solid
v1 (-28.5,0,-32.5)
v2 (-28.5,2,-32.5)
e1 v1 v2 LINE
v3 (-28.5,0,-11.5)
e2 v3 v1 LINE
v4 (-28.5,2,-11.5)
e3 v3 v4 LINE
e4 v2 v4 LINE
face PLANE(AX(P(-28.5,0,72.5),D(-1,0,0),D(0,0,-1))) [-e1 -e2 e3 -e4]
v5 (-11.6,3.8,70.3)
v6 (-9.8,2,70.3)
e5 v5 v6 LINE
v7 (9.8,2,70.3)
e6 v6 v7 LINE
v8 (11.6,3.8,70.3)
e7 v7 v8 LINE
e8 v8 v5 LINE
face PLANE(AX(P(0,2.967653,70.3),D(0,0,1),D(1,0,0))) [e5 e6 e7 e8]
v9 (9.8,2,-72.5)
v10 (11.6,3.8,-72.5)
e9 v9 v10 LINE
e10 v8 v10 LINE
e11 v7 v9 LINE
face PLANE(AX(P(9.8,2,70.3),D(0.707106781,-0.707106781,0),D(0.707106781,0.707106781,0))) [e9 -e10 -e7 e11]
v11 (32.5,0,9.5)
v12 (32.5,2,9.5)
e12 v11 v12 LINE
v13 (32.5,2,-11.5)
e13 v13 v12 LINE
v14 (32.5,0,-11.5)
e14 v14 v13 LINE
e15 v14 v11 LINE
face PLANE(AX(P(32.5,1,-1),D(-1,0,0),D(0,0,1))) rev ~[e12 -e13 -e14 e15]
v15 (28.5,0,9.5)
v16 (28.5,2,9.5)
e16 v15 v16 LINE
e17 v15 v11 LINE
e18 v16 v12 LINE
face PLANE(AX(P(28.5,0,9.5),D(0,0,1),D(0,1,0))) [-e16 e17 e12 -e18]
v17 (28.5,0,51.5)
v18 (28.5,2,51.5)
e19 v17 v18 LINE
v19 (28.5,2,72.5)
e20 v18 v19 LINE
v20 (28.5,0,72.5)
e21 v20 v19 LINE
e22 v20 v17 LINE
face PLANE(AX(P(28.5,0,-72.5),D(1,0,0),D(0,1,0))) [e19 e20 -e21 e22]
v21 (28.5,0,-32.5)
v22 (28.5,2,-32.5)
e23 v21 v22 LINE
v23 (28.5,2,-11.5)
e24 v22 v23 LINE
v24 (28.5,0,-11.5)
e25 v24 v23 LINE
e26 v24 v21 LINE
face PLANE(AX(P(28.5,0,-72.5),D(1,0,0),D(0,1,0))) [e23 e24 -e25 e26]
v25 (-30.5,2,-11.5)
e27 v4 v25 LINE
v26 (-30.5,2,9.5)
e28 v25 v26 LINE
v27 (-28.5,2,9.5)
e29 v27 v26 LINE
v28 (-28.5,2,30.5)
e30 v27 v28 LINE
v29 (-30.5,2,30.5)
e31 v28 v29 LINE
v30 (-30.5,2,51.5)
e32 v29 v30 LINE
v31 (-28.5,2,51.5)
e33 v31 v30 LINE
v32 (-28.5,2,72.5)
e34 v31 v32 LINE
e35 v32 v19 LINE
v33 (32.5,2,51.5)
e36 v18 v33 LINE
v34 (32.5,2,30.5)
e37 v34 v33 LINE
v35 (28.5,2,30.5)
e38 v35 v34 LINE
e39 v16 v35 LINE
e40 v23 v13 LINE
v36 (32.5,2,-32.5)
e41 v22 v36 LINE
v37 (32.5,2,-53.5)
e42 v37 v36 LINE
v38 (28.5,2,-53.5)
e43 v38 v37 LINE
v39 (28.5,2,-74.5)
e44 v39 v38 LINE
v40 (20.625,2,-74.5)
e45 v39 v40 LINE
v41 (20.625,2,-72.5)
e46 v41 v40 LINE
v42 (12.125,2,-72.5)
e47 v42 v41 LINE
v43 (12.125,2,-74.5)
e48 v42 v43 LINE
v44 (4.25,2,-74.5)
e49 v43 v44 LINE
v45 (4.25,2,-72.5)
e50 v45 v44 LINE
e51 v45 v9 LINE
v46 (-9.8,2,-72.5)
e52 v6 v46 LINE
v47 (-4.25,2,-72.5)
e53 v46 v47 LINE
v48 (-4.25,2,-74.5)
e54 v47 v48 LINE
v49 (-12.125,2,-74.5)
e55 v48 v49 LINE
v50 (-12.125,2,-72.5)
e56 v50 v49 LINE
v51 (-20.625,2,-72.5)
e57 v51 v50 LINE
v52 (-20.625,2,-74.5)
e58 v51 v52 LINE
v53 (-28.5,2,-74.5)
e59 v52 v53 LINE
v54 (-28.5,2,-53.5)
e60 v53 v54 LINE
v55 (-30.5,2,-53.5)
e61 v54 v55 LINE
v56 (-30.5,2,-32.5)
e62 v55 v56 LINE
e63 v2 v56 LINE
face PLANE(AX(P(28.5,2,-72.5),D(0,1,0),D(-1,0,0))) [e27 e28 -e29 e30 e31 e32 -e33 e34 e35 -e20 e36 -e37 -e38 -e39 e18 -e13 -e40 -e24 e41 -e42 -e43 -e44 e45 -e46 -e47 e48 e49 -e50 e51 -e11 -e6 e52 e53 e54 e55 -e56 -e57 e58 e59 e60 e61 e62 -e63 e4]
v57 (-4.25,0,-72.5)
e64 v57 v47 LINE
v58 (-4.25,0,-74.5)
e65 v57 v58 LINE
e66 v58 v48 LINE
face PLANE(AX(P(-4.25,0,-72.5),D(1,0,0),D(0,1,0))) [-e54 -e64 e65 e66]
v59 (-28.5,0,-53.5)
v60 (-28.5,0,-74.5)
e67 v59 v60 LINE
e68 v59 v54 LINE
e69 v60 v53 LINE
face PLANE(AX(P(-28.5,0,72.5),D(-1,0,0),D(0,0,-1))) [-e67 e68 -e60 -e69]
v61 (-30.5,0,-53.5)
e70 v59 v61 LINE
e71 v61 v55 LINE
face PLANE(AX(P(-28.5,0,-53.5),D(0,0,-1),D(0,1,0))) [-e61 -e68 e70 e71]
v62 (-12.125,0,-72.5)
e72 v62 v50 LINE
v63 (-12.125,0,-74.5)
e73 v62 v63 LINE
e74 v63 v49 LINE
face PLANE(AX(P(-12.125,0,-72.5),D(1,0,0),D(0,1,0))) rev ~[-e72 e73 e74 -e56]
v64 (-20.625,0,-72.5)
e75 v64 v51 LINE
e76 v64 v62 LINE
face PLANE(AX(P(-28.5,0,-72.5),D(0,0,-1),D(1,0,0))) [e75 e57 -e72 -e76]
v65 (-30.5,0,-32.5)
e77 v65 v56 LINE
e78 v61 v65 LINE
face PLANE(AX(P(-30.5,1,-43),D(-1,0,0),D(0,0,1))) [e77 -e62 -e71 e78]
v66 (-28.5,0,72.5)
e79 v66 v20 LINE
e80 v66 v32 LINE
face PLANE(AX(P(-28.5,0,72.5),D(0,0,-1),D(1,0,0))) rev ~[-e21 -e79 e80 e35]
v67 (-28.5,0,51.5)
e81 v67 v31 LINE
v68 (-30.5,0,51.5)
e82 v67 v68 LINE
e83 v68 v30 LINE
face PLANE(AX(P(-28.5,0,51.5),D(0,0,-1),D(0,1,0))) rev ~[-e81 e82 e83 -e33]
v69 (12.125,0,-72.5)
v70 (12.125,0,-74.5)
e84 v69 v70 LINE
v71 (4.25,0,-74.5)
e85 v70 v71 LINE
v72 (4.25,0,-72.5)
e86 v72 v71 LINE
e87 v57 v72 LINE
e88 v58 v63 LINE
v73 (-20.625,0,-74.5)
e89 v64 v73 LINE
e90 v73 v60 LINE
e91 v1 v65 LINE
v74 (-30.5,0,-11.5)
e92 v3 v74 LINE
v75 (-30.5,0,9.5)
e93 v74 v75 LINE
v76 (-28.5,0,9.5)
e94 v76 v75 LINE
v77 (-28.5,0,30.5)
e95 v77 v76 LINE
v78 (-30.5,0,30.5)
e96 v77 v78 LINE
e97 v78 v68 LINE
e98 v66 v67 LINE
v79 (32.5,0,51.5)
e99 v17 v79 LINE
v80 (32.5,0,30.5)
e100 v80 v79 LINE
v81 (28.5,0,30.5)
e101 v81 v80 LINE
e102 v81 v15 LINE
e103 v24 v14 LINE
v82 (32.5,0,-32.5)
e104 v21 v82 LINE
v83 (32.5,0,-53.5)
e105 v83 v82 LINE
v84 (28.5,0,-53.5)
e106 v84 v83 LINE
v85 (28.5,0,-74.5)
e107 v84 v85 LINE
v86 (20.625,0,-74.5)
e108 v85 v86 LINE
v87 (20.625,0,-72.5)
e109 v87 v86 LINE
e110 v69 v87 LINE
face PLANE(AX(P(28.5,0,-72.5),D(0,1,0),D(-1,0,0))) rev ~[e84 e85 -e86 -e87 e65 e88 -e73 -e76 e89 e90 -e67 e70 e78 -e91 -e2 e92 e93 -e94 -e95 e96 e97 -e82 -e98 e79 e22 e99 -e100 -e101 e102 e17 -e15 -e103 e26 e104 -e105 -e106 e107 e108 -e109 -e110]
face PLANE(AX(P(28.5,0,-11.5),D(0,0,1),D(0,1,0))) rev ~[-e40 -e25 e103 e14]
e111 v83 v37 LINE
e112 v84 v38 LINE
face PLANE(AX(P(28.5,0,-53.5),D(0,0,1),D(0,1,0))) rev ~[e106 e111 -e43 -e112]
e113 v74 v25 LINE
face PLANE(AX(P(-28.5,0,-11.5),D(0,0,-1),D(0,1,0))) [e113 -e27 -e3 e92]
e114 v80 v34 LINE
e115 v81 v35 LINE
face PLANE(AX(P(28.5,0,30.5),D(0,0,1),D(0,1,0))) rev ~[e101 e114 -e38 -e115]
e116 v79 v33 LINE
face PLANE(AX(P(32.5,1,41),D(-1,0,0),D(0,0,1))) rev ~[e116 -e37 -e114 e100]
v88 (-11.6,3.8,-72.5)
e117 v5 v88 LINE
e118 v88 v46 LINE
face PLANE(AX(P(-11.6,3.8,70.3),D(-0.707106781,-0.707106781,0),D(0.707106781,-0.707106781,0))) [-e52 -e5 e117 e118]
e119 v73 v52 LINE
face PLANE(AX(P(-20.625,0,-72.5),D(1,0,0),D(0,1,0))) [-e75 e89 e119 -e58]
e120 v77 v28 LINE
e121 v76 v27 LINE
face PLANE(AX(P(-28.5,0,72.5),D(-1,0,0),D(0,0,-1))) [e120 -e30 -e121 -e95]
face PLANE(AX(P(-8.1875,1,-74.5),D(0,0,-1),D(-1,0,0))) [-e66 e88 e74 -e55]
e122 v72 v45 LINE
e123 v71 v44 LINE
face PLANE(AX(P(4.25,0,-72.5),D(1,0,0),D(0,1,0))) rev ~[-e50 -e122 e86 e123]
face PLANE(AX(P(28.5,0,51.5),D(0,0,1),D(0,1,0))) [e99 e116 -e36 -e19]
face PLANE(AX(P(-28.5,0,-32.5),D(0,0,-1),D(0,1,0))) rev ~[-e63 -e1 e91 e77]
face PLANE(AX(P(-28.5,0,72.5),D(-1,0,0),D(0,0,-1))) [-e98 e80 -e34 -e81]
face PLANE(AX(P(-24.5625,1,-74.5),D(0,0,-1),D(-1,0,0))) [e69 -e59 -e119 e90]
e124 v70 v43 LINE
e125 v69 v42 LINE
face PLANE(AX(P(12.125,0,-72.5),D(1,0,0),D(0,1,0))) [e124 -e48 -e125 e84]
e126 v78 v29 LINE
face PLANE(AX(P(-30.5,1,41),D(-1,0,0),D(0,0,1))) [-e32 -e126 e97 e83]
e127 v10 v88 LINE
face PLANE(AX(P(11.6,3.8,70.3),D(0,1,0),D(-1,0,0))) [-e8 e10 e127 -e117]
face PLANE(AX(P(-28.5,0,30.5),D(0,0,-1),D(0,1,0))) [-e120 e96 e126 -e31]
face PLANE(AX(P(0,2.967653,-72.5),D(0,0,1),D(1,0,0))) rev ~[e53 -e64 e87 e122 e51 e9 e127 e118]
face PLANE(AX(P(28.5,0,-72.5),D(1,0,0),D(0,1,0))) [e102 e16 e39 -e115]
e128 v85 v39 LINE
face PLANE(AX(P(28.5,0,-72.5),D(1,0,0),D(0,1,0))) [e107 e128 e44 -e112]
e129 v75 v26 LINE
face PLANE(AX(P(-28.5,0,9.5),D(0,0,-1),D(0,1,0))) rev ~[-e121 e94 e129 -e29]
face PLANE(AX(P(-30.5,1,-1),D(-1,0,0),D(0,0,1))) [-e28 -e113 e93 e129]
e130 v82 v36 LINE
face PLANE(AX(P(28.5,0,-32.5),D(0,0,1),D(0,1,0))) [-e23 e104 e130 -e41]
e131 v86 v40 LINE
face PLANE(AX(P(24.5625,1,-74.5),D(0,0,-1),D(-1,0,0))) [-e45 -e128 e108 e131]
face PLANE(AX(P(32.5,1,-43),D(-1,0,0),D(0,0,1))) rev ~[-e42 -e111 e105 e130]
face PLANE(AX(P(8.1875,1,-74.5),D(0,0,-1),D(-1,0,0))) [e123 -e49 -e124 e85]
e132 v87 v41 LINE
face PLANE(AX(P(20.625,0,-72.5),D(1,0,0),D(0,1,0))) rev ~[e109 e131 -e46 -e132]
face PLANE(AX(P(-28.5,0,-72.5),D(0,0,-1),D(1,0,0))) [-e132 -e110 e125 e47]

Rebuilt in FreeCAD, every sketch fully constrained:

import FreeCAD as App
import Part
import Sketcher
from FreeCAD import Vector


def add_polygon(sketch, points):
    """Adds a closed chain of lines whose ends are joined by coincident constraints."""
    first, n = sketch.GeometryCount, len(points)
    for a, b in zip(points, points[1:] + points[:1]):
        sketch.addGeometry(Part.LineSegment(App.Vector(*a, 0), App.Vector(*b, 0)), False)
    for i in range(n):
        sketch.addConstraint(Sketcher.Constraint("Coincident", first + i, 2, first + (i + 1) % n, 1))

doc = App.newDocument("Part")
body = doc.addObject("PartDesign::Body", "Body")

# Sketch on XZ plane
sketch1 = body.newObject("Sketcher::SketchObject", "Sketch")
sketch1.AttachmentSupport = (doc.getObject("XZ_Plane"), [""])
sketch1.MapMode = "FlatFace"
add_polygon(sketch1, [(-28.5, -72.5), (-28.5, 72.5), (28.5, 72.5), (28.5, -72.5)])  # lines 0-3
sketch1.addConstraint(Sketcher.Constraint("Vertical", 0))
sketch1.addConstraint(Sketcher.Constraint("Horizontal", 1))
sketch1.addConstraint(Sketcher.Constraint("Vertical", 2))
sketch1.addConstraint(Sketcher.Constraint("Horizontal", 3))
sketch1.addConstraint(Sketcher.Constraint("Symmetric", 0, 2, 2, 2, -1, 1))
sketch1.addConstraint(Sketcher.Constraint("DistanceX", 1, 1, 1, 2, 57.0))
sketch1.addConstraint(Sketcher.Constraint("DistanceY", 0, 1, 0, 2, 145.0))
pad1 = body.newObject("PartDesign::Pad", "Pad")
pad1.Profile = sketch1
pad1.Length = 2
pad1.Reversed = True

# Sketch on XY plane
sketch2 = body.newObject("Sketcher::SketchObject", "Sketch001")
sketch2.AttachmentSupport = (doc.getObject("XY_Plane"), [""])
sketch2.MapMode = "FlatFace"
sketch2.AttachmentOffset = App.Placement(Vector(0, 0, -72.5), App.Rotation())
add_polygon(sketch2, [(28.5, 2), (28.5, 0), (20.625, 0), (20.625, 2)])  # lines 0-3
add_polygon(sketch2, [(12.125, 2), (12.125, 0), (4.25, 0), (4.25, 2)])  # lines 4-7
add_polygon(sketch2, [(-4.25, 2), (-4.25, 0), (-12.125, 0), (-12.125, 2)])  # lines 8-11
add_polygon(sketch2, [(-20.625, 2), (-20.625, 0), (-28.5, 0), (-28.5, 2)])  # lines 12-15
sketch2.addConstraint(Sketcher.Constraint("Vertical", 0))
sketch2.addConstraint(Sketcher.Constraint("Horizontal", 1))
sketch2.addConstraint(Sketcher.Constraint("Vertical", 2))
sketch2.addConstraint(Sketcher.Constraint("Horizontal", 3))
sketch2.addConstraint(Sketcher.Constraint("Vertical", 4))
sketch2.addConstraint(Sketcher.Constraint("Horizontal", 5))
sketch2.addConstraint(Sketcher.Constraint("Vertical", 6))
sketch2.addConstraint(Sketcher.Constraint("Horizontal", 7))
sketch2.addConstraint(Sketcher.Constraint("Vertical", 8))
sketch2.addConstraint(Sketcher.Constraint("Horizontal", 9))
sketch2.addConstraint(Sketcher.Constraint("Vertical", 10))
sketch2.addConstraint(Sketcher.Constraint("Horizontal", 11))
sketch2.addConstraint(Sketcher.Constraint("Vertical", 12))
sketch2.addConstraint(Sketcher.Constraint("Horizontal", 13))
sketch2.addConstraint(Sketcher.Constraint("Vertical", 14))
sketch2.addConstraint(Sketcher.Constraint("Horizontal", 15))
sketch2.addConstraint(Sketcher.Constraint("Symmetric", 5, 2, 8, 2, -1, 1))
sketch2.addConstraint(Sketcher.Constraint("Symmetric", 1, 2, 12, 2, -1, 1))
sketch2.addConstraint(Sketcher.Constraint("Symmetric", 4, 2, 9, 2, -2))
sketch2.addConstraint(Sketcher.Constraint("Symmetric", 0, 2, 13, 2, -2))
sketch2.addConstraint(Sketcher.Constraint("Horizontal", 3, 2, 6, 2))
sketch2.addConstraint(Sketcher.Constraint("Horizontal", 7, 2, 10, 2))
sketch2.addConstraint(Sketcher.Constraint("Horizontal", 11, 2, 14, 2))
sketch2.addConstraint(Sketcher.Constraint("Equal", 3, 5))
sketch2.addConstraint(Sketcher.Constraint("DistanceY", 0, 2, 0, 1, 2.0))
sketch2.addConstraint(Sketcher.Constraint("DistanceX", -1, 1, 0, 2, 28.5))
sketch2.addConstraint(Sketcher.Constraint("DistanceX", 4, 2, 1, 2, 8.5))
sketch2.addConstraint(Sketcher.Constraint("DistanceX", 8, 2, 5, 2, 8.5))
pad2 = body.newObject("PartDesign::Pad", "Pad001")
pad2.Profile = sketch2
pad2.Length = 2
pad2.Reversed = True

# Sketch on YZ plane
sketch3 = body.newObject("Sketcher::SketchObject", "Sketch002")
sketch3.AttachmentSupport = (doc.getObject("YZ_Plane"), [""])
sketch3.MapMode = "FlatFace"
sketch3.AttachmentOffset = App.Placement(Vector(0, 0, -28.5), App.Rotation())
add_polygon(sketch3, [(2, -53.5), (0, -53.5), (0, -32.5), (2, -32.5)])  # lines 0-3
add_polygon(sketch3, [(2, -11.5), (0, -11.5), (0, 9.5), (2, 9.5)])  # lines 4-7
add_polygon(sketch3, [(2, 30.5), (0, 30.5), (0, 51.5), (2, 51.5)])  # lines 8-11
sketch3.addConstraint(Sketcher.Constraint("Horizontal", 0))
sketch3.addConstraint(Sketcher.Constraint("Vertical", 1))
sketch3.addConstraint(Sketcher.Constraint("Horizontal", 2))
sketch3.addConstraint(Sketcher.Constraint("Vertical", 3))
sketch3.addConstraint(Sketcher.Constraint("Horizontal", 4))
sketch3.addConstraint(Sketcher.Constraint("Vertical", 5))
sketch3.addConstraint(Sketcher.Constraint("Horizontal", 6))
sketch3.addConstraint(Sketcher.Constraint("Vertical", 7))
sketch3.addConstraint(Sketcher.Constraint("Horizontal", 8))
sketch3.addConstraint(Sketcher.Constraint("Vertical", 9))
sketch3.addConstraint(Sketcher.Constraint("Horizontal", 10))
sketch3.addConstraint(Sketcher.Constraint("Vertical", 11))
sketch3.addConstraint(Sketcher.Constraint("PointOnObject", 0, 2, -2))
sketch3.addConstraint(Sketcher.Constraint("PointOnObject", 4, 2, -2))
sketch3.addConstraint(Sketcher.Constraint("PointOnObject", 8, 2, -2))
sketch3.addConstraint(Sketcher.Constraint("Vertical", 3, 2, 6, 2))
sketch3.addConstraint(Sketcher.Constraint("Vertical", 7, 2, 10, 2))
sketch3.addConstraint(Sketcher.Constraint("Equal", 3, 5))
sketch3.addConstraint(Sketcher.Constraint("Equal", 7, 9))
sketch3.addConstraint(Sketcher.Constraint("DistanceX", 0, 2, 0, 1, 2.0))
sketch3.addConstraint(Sketcher.Constraint("DistanceY", 1, 1, 1, 2, 21.0))
sketch3.addConstraint(Sketcher.Constraint("DistanceY", 1, 2, 4, 2, 21.0))
sketch3.addConstraint(Sketcher.Constraint("DistanceY", 5, 2, 8, 2, 21.0))
sketch3.addConstraint(Sketcher.Constraint("DistanceY", 0, 2, -1, 1, 53.5))
pad3 = body.newObject("PartDesign::Pad", "Pad002")
pad3.Profile = sketch3
pad3.Length = 2
pad3.Reversed = True

# Sketch on YZ plane
sketch4 = body.newObject("Sketcher::SketchObject", "Sketch003")
sketch4.AttachmentSupport = (doc.getObject("YZ_Plane"), [""])
sketch4.MapMode = "FlatFace"
sketch4.AttachmentOffset = App.Placement(Vector(0, 0, 28.5), App.Rotation())
add_polygon(sketch4, [(2, -53.5), (0, -53.5), (0, -32.5), (2, -32.5)])  # lines 0-3
add_polygon(sketch4, [(2, -11.5), (0, -11.5), (0, 9.5), (2, 9.5)])  # lines 4-7
add_polygon(sketch4, [(2, 30.5), (0, 30.5), (0, 51.5), (2, 51.5)])  # lines 8-11
sketch4.addConstraint(Sketcher.Constraint("Horizontal", 0))
sketch4.addConstraint(Sketcher.Constraint("Vertical", 1))
sketch4.addConstraint(Sketcher.Constraint("Horizontal", 2))
sketch4.addConstraint(Sketcher.Constraint("Vertical", 3))
sketch4.addConstraint(Sketcher.Constraint("Horizontal", 4))
sketch4.addConstraint(Sketcher.Constraint("Vertical", 5))
sketch4.addConstraint(Sketcher.Constraint("Horizontal", 6))
sketch4.addConstraint(Sketcher.Constraint("Vertical", 7))
sketch4.addConstraint(Sketcher.Constraint("Horizontal", 8))
sketch4.addConstraint(Sketcher.Constraint("Vertical", 9))
sketch4.addConstraint(Sketcher.Constraint("Horizontal", 10))
sketch4.addConstraint(Sketcher.Constraint("Vertical", 11))
sketch4.addConstraint(Sketcher.Constraint("PointOnObject", 0, 2, -2))
sketch4.addConstraint(Sketcher.Constraint("PointOnObject", 4, 2, -2))
sketch4.addConstraint(Sketcher.Constraint("PointOnObject", 8, 2, -2))
sketch4.addConstraint(Sketcher.Constraint("Vertical", 3, 2, 6, 2))
sketch4.addConstraint(Sketcher.Constraint("Vertical", 7, 2, 10, 2))
sketch4.addConstraint(Sketcher.Constraint("Equal", 3, 5))
sketch4.addConstraint(Sketcher.Constraint("Equal", 7, 9))
sketch4.addConstraint(Sketcher.Constraint("DistanceX", 0, 2, 0, 1, 2.0))
sketch4.addConstraint(Sketcher.Constraint("DistanceY", 1, 1, 1, 2, 21.0))
sketch4.addConstraint(Sketcher.Constraint("DistanceY", 1, 2, 4, 2, 21.0))
sketch4.addConstraint(Sketcher.Constraint("DistanceY", 5, 2, 8, 2, 21.0))
sketch4.addConstraint(Sketcher.Constraint("DistanceY", 0, 2, -1, 1, 53.5))
pad4 = body.newObject("PartDesign::Pad", "Pad003")
pad4.Profile = sketch4
pad4.Length = 4

# Sketch on XY plane
sketch5 = body.newObject("Sketcher::SketchObject", "Sketch004")
sketch5.AttachmentSupport = (doc.getObject("XY_Plane"), [""])
sketch5.MapMode = "FlatFace"
sketch5.AttachmentOffset = App.Placement(Vector(0, 0, 70.3), App.Rotation())
add_polygon(sketch5, [(-11.6, 3.8), (-9.8, 2), (9.8, 2), (11.6, 3.8)])  # lines 0-3
sketch5.addConstraint(Sketcher.Constraint("Horizontal", 1))
sketch5.addConstraint(Sketcher.Constraint("Horizontal", 3))
sketch5.addConstraint(Sketcher.Constraint("Perpendicular", 0, 2))
sketch5.addConstraint(Sketcher.Constraint("Equal", 0, 2))
sketch5.addConstraint(Sketcher.Constraint("DistanceX", 1, 1, 1, 2, 19.6))
sketch5.addConstraint(Sketcher.Constraint("DistanceX", 3, 2, 3, 1, 23.2))
sketch5.addConstraint(Sketcher.Constraint("DistanceY", -1, 1, 0, 2, 2.0))
sketch5.addConstraint(Sketcher.Constraint("DistanceX", 0, 2, -1, 1, 9.8))
pad5 = body.newObject("PartDesign::Pad", "Pad004")
pad5.Profile = sketch5
pad5.Length = 142.8
pad5.Reversed = True

doc.recompute()
